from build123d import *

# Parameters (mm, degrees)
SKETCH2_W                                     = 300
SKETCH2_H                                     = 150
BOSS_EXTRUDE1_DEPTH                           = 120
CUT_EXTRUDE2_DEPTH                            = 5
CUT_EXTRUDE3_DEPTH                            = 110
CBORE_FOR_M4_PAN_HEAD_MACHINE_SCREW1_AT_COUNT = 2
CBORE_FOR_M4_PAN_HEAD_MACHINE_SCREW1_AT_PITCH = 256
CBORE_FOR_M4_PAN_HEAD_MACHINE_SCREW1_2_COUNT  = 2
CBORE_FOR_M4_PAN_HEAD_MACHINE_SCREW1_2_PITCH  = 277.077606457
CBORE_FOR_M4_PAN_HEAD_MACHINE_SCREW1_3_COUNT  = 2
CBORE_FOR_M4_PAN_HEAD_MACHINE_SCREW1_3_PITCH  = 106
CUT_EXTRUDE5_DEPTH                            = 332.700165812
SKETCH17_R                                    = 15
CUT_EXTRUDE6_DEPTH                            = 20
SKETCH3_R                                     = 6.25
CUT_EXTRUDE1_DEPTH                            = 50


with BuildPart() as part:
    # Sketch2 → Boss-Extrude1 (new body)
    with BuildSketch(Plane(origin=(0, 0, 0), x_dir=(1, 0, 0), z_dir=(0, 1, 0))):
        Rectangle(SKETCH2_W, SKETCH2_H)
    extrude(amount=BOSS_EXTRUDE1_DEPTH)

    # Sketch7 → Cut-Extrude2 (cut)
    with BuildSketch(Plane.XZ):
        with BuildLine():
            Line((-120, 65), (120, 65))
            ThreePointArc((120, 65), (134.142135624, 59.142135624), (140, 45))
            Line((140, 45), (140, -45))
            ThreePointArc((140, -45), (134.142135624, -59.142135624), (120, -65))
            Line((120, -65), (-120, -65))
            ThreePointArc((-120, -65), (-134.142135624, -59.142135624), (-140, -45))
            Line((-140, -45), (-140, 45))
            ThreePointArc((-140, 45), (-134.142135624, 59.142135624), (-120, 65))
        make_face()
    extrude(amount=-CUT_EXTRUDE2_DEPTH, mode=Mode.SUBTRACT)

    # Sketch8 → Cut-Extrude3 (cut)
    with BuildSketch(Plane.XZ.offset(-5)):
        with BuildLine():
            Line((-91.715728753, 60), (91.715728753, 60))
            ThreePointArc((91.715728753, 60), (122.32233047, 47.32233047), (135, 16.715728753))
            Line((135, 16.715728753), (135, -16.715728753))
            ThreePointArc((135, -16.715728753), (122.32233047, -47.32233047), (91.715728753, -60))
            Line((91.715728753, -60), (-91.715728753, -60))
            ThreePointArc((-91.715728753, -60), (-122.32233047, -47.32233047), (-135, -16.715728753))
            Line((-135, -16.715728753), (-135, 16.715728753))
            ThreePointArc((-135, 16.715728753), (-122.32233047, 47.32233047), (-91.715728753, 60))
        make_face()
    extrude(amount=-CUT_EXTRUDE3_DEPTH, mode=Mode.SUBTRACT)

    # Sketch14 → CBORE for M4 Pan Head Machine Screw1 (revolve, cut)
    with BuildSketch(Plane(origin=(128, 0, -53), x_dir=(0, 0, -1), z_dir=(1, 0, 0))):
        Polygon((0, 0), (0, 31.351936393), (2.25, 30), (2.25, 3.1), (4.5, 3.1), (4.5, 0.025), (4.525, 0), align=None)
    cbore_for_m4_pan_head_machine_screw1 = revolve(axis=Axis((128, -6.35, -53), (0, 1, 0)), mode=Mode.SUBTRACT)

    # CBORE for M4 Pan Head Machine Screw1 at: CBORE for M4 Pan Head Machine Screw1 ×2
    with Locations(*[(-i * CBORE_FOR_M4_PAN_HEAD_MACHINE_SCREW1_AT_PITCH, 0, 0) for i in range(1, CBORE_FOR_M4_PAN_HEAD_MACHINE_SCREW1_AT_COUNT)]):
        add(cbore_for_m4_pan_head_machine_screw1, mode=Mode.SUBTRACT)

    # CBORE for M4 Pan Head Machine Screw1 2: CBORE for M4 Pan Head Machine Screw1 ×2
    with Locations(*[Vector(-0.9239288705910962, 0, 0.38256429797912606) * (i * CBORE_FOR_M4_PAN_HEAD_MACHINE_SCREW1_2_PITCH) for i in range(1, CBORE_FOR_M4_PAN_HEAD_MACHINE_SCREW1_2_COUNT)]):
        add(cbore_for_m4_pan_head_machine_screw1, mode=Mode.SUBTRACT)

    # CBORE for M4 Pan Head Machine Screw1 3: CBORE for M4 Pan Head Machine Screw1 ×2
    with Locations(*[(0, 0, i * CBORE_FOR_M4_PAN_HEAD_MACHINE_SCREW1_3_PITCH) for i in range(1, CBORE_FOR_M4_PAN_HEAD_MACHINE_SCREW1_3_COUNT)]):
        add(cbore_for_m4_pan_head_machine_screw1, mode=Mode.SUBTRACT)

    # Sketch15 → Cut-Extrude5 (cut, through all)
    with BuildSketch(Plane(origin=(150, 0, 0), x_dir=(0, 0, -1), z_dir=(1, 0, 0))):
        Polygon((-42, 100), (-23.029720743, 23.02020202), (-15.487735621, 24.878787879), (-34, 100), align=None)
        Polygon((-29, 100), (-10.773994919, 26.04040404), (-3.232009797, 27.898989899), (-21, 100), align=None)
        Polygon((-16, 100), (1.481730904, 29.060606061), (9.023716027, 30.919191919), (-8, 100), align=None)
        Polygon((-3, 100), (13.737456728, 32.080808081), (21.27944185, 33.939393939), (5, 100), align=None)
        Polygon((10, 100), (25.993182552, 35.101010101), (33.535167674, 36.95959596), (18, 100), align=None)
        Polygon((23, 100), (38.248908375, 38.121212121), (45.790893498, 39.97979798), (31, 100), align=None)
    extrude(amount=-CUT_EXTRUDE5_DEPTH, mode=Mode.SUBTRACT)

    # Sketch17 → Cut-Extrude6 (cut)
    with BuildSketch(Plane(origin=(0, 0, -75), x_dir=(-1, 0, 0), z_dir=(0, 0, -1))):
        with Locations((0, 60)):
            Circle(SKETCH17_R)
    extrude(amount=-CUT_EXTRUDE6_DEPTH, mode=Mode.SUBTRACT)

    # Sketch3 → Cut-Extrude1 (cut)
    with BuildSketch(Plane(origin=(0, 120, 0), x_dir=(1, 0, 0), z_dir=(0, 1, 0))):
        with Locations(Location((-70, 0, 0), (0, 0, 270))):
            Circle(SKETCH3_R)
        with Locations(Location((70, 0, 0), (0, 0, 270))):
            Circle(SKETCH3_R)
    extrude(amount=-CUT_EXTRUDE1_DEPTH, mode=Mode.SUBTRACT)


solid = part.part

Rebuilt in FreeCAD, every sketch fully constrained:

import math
import FreeCAD as App
import Part
import Sketcher
from FreeCAD import Vector
Q = App.Units.Quantity


def add_polygon(sketch, points):
    """Adds a closed chain of lines whose ends are joined by coincident constraints."""
    first, n = sketch.GeometryCount, len(points)
    for a, b in zip(points, points[1:] + points[:1]):
        sketch.addGeometry(Part.LineSegment(App.Vector(*a, 0), App.Vector(*b, 0)), False)
    for i in range(n):
        sketch.addConstraint(Sketcher.Constraint("Coincident", first + i, 2, first + (i + 1) % n, 1))

doc = App.newDocument("Part")
body = doc.addObject("PartDesign::Body", "Body")

sketch1 = doc.addObject("Sketcher::SketchObject", "Sketch")
body.addObject(sketch1)
sketch1.AttachmentSupport = (doc.XZ_Plane, [""])
sketch1.MapMode = "FlatFace"
add_polygon(sketch1, [(-150, -75), (-150, 75), (150, 75), (150, -75)])
sketch1.addConstraint([
    Sketcher.Constraint("Vertical", 0),
    Sketcher.Constraint("Horizontal", 1),
    Sketcher.Constraint("Vertical", 2),
    Sketcher.Constraint("Horizontal", 3),
    Sketcher.Constraint("Symmetric", 0, 2, 2, 2, -1, 1),
    Sketcher.Constraint("DistanceX", 1, 1, 1, 2, 300.0),
    Sketcher.Constraint("DistanceY", 0, 1, 0, 2, 150.0),
])
pad1 = doc.addObject("PartDesign::Pad", "Pad")
body.addObject(pad1)
pad1.Profile = sketch1
pad1.Length = 120
pad1.Reversed = True

sketch2 = doc.addObject("Sketcher::SketchObject", "Sketch001")
body.addObject(sketch2)
sketch2.AttachmentSupport = (doc.XZ_Plane, [""])
sketch2.MapMode = "FlatFace"
sketch2.addGeometry([
    Part.LineSegment(Vector(120, 65, 0), Vector(-120, 65, 0)),
    Part.ArcOfCircle(Part.Circle(Vector(-120, 45, 0), Vector(0, 0, 1), 20), math.radians(90), math.radians(180)),
    Part.LineSegment(Vector(-140, 45, 0), Vector(-140, -45, 0)),
    Part.ArcOfCircle(Part.Circle(Vector(-120, -45, 0), Vector(0, 0, 1), 20), math.radians(180), math.radians(270)),
    Part.LineSegment(Vector(-120, -65, 0), Vector(120, -65, 0)),
    Part.ArcOfCircle(Part.Circle(Vector(120, -45, 0), Vector(0, 0, 1), 20), math.radians(-90), math.radians(0)),
    Part.LineSegment(Vector(140, -45, 0), Vector(140, 45, 0)),
    Part.ArcOfCircle(Part.Circle(Vector(120, 45, 0), Vector(0, 0, 1), 20), math.radians(0), math.radians(90)),
], False)
sketch2.addConstraint([
    Sketcher.Constraint("Tangent", 0, 2, 1, 1),
    Sketcher.Constraint("Tangent", 1, 2, 2, 1),
    Sketcher.Constraint("Tangent", 2, 2, 3, 1),
    Sketcher.Constraint("Tangent", 3, 2, 4, 1),
    Sketcher.Constraint("Tangent", 4, 2, 5, 1),
    Sketcher.Constraint("Tangent", 5, 2, 6, 1),
    Sketcher.Constraint("Tangent", 6, 2, 7, 1),
    Sketcher.Constraint("Tangent", 7, 2, 0, 1),
    Sketcher.Constraint("Horizontal", 0),
    Sketcher.Constraint("Vertical", 2),
    Sketcher.Constraint("Horizontal", 4),
    Sketcher.Constraint("Vertical", 6),
    Sketcher.Constraint("Equal", 1, 3),
    Sketcher.Constraint("Equal", 3, 5),
    Sketcher.Constraint("Equal", 5, 7),
    Sketcher.Constraint("Symmetric", 1, 3, 5, 3, -1, 1),
    Sketcher.Constraint("Radius", 1, 20.0),
    Sketcher.Constraint("DistanceX", 0, 2, 0, 1, 240.0),
    Sketcher.Constraint("DistanceY", 2, 2, 2, 1, 90.0),
])
pocket1 = doc.addObject("PartDesign::Pocket", "Pocket")
body.addObject(pocket1)
pocket1.Profile = sketch2
pocket1.Length = 5

sketch3 = doc.addObject("Sketcher::SketchObject", "Sketch002")
body.addObject(sketch3)
sketch3.AttachmentSupport = (doc.XZ_Plane, [""])
sketch3.MapMode = "FlatFace"
sketch3.AttachmentOffset = App.Placement(Vector(0, 0, -5), App.Rotation())
sketch3.addGeometry([
    Part.LineSegment(Vector(92, 60, 0), Vector(-92, 60, 0)),
    Part.ArcOfCircle(Part.Circle(Vector(-92, 17, 0), Vector(0, 0, 1), 43), math.radians(90), math.radians(180)),
    Part.LineSegment(Vector(-135, 17, 0), Vector(-135, -17, 0)),
    Part.ArcOfCircle(Part.Circle(Vector(-92, -17, 0), Vector(0, 0, 1), 43), math.radians(-180), math.radians(-90)),
    Part.LineSegment(Vector(-92, -60, 0), Vector(92, -60, 0)),
    Part.ArcOfCircle(Part.Circle(Vector(92, -17, 0), Vector(0, 0, 1), 43), math.radians(-90), math.radians(0)),
    Part.LineSegment(Vector(135, -17, 0), Vector(135, 17, 0)),
    Part.ArcOfCircle(Part.Circle(Vector(92, 17, 0), Vector(0, 0, 1), 43), math.radians(0), math.radians(90)),
], False)
sketch3.addConstraint([
    Sketcher.Constraint("Tangent", 0, 2, 1, 1),
    Sketcher.Constraint("Tangent", 1, 2, 2, 1),
    Sketcher.Constraint("Tangent", 2, 2, 3, 1),
    Sketcher.Constraint("Tangent", 3, 2, 4, 1),
    Sketcher.Constraint("Tangent", 4, 2, 5, 1),
    Sketcher.Constraint("Tangent", 5, 2, 6, 1),
    Sketcher.Constraint("Tangent", 6, 2, 7, 1),
    Sketcher.Constraint("Tangent", 7, 2, 0, 1),
    Sketcher.Constraint("Horizontal", 0),
    Sketcher.Constraint("Vertical", 2),
    Sketcher.Constraint("Horizontal", 4),
    Sketcher.Constraint("Vertical", 6),
    Sketcher.Constraint("Equal", 1, 3),
    Sketcher.Constraint("Equal", 3, 5),
    Sketcher.Constraint("Equal", 5, 7),
    Sketcher.Constraint("Symmetric", 1, 3, 5, 3, -1, 1),
    Sketcher.Constraint("DistanceY", -1, 1, 0, 2, 60.0),
    Sketcher.Constraint("DistanceX", 1, 2, -1, 1, 135.0),
    Sketcher.Constraint("Radius", 1, 43.284271),
])
pocket2 = doc.addObject("PartDesign::Pocket", "Pocket001")
body.addObject(pocket2)
pocket2.Profile = sketch3
pocket2.Length = 110

sketch4 = doc.addObject("Sketcher::SketchObject", "Sketch003")
body.addObject(sketch4)
sketch4.AttachmentSupport = (doc.YZ_Plane, [""])
sketch4.MapMode = "FlatFace"
sketch4.AttachmentOffset = App.Placement(Vector(0, 0, 128), App.Rotation())
add_polygon(sketch4, [(31.352, -53), (0, -53), (0, -57.525), (0.025, -57.5), (3.1, -57.5), (3.1, -55.25), (30, -55.25)])
sketch4.addGeometry(Part.LineSegment(Vector(0, -53, 0), Vector(31.352, -53, 0)), True)
sketch4.addConstraint([
    Sketcher.Constraint("Horizontal", 0),
    Sketcher.Constraint("Vertical", 1),
    Sketcher.Constraint("Horizontal", 3),
    Sketcher.Constraint("Vertical", 4),
    Sketcher.Constraint("Horizontal", 5),
    Sketcher.Constraint("Horizontal", 7),
    Sketcher.Constraint("Coincident", 7, 1, 0, 2),
    Sketcher.Constraint("PointOnObject", 0, 2, -2),
    Sketcher.Constraint("Equal", 0, 7),
    Sketcher.Constraint("Angle", 2, Q("45 deg")),
    Sketcher.Constraint("Angle", 6, Q("59 deg")),
    Sketcher.Constraint("DistanceX", 5, 1, 5, 2, 26.9),
    Sketcher.Constraint("DistanceY", 0, 2, -1, 1, 53.0),
    Sketcher.Constraint("DistanceX", -1, 1, 5, 2, 30.0),
    Sketcher.Constraint("DistanceY", 4, 1, 4, 2, 2.25),
    Sketcher.Constraint("DistanceY", 2, 2, -1, 1, 57.5),
    Sketcher.Constraint("DistanceX", 3, 1, 3, 2, 3.075),
])
groove = doc.addObject("PartDesign::Groove", "Groove")
body.addObject(groove)
groove.Profile = sketch4
groove.ReferenceAxis = (sketch4, ["Axis0"])
groove.Angle = 360
doc.recompute()

linearpattern = doc.addObject("PartDesign::LinearPattern", "LinearPattern")
body.addObject(linearpattern)
linearpattern.Originals = [groove]
linearpattern.Direction = (doc.X_Axis, [""])
linearpattern.Mode = "offset"
linearpattern.Offset = 256
linearpattern.Occurrences = 2
linearpattern.Reversed = True
body.Tip = linearpattern
doc.recompute()

datumline = doc.addObject("PartDesign::Line", "DatumLine")
body.addObject(datumline)
datumline.Placement = App.Placement(Vector(0, 0, 0), App.Rotation(Vector(0, 0, 1), Vector(-0.923928871, 0, 0.382564298)))
linearpattern2 = doc.addObject("PartDesign::LinearPattern", "LinearPattern001")
body.addObject(linearpattern2)
linearpattern2.Originals = [groove]
linearpattern2.Direction = (datumline, [""])
linearpattern2.Mode = "offset"
linearpattern2.Offset = 277.077606
linearpattern2.Occurrences = 2
body.Tip = linearpattern2
doc.recompute()

linearpattern3 = doc.addObject("PartDesign::LinearPattern", "LinearPattern002")
body.addObject(linearpattern3)
linearpattern3.Originals = [groove]
linearpattern3.Direction = (doc.Z_Axis, [""])
linearpattern3.Mode = "offset"
linearpattern3.Offset = 106
linearpattern3.Occurrences = 2
body.Tip = linearpattern3

sketch5 = doc.addObject("Sketcher::SketchObject", "Sketch004")
body.addObject(sketch5)
sketch5.AttachmentSupport = (doc.YZ_Plane, [""])
sketch5.MapMode = "FlatFace"
sketch5.AttachmentOffset = App.Placement(Vector(0, 0, 150), App.Rotation())
add_polygon(sketch5, [(100, 42), (23, 23), (25, 15), (100, 34)])
add_polygon(sketch5, [(100, 29), (26, 11), (28, 3), (100, 21)])
add_polygon(sketch5, [(100, 16), (29, -1), (31, -9), (100, 8)])
add_polygon(sketch5, [(100, 3), (32, -14), (34, -21), (100, -5)])
add_polygon(sketch5, [(100, -10), (35, -26), (37, -34), (100, -18)])
add_polygon(sketch5, [(100, -23), (38, -38), (40, -46), (100, -31)])
sketch5.addConstraint([
    Sketcher.Constraint("Vertical", 3),
    Sketcher.Constraint("Vertical", 7),
    Sketcher.Constraint("Vertical", 11),
    Sketcher.Constraint("Vertical", 15),
    Sketcher.Constraint("Vertical", 19),
    Sketcher.Constraint("Vertical", 23),
    Sketcher.Constraint("Perpendicular", 0, 1),
    Sketcher.Constraint("Perpendicular", 1, 2),
    Sketcher.Constraint("Parallel", 2, 4),
    Sketcher.Constraint("Perpendicular", 4, 5),
    Sketcher.Constraint("Perpendicular", 5, 6),
    Sketcher.Constraint("Parallel", 6, 8),
    Sketcher.Constraint("Perpendicular", 8, 9),
    Sketcher.Constraint("Perpendicular", 9, 10),
    Sketcher.Constraint("Parallel", 10, 12),
    Sketcher.Constraint("Perpendicular", 12, 13),
    Sketcher.Constraint("Perpendicular", 13, 14),
    Sketcher.Constraint("Parallel", 14, 16),
    Sketcher.Constraint("Perpendicular", 16, 17),
    Sketcher.Constraint("Perpendicular", 17, 18),
    Sketcher.Constraint("Parallel", 18, 20),
    Sketcher.Constraint("Perpendicular", 20, 21),
    Sketcher.Constraint("Perpendicular", 21, 22),
    Sketcher.Constraint("Vertical", 3, 2, 6, 2),
    Sketcher.Constraint("Vertical", 7, 2, 10, 2),
    Sketcher.Constraint("Vertical", 11, 2, 14, 2),
    Sketcher.Constraint("Vertical", 15, 2, 18, 2),
    Sketcher.Constraint("Vertical", 19, 2, 22, 2),
    Sketcher.Constraint("Equal", 3, 7),
    Sketcher.Constraint("Equal", 7, 11),
    Sketcher.Constraint("Equal", 11, 15),
    Sketcher.Constraint("Equal", 15, 19),
    Sketcher.Constraint("Equal", 19, 23),
    Sketcher.Constraint("DistanceY", 3, 1, 3, 2, 8.0),
    Sketcher.Constraint("DistanceX", -1, 1, 2, 2, 100.0),
    Sketcher.Constraint("DistanceY", -1, 1, 2, 2, 34.0),
    Sketcher.Constraint("DistanceY", -1, 1, 6, 2, 21.0),
    Sketcher.Constraint("DistanceY", -1, 1, 10, 2, 8.0),
    Sketcher.Constraint("DistanceY", 14, 2, -1, 1, 5.0),
    Sketcher.Constraint("DistanceY", 18, 2, -1, 1, 18.0),
    Sketcher.Constraint("DistanceY", 22, 2, -1, 1, 31.0),
    Sketcher.Constraint("Distance", 2, 77.368601),
    Sketcher.Constraint("Distance", 0, 79.28279),
    Sketcher.Constraint("Distance", 12, 69.951119),
    Sketcher.Constraint("DistanceX", -1, 1, 5, 2, 27.89899),
    Sketcher.Constraint("DistanceY", 8, 2, -1, 1, 1.481731),
    Sketcher.Constraint("DistanceX", -1, 1, 16, 2, 35.10101),
    Sketcher.Constraint("DistanceY", 20, 2, -1, 1, 38.248908),
])
pocket3 = doc.addObject("PartDesign::Pocket", "Pocket002")
body.addObject(pocket3)
pocket3.Profile = sketch5
pocket3.Type = "ThroughAll"

sketch6 = doc.addObject("Sketcher::SketchObject", "Sketch005")
body.addObject(sketch6)
sketch6.AttachmentSupport = (doc.XY_Plane, [""])
sketch6.MapMode = "FlatFace"
sketch6.AttachmentOffset = App.Placement(Vector(0, 0, -75), App.Rotation())
sketch6.addGeometry(Part.Circle(Vector(0, 60, 0), Vector(0, 0, 1), 15), False)
sketch6.addConstraint([
    Sketcher.Constraint("PointOnObject", 0, 3, -2),
    Sketcher.Constraint("Diameter", 0, 30.0),
    Sketcher.Constraint("DistanceY", -1, 1, 0, 3, 60.0),
])
pocket4 = doc.addObject("PartDesign::Pocket", "Pocket003")
body.addObject(pocket4)
pocket4.Profile = sketch6
pocket4.Length = 20
pocket4.Reversed = True

sketch7 = doc.addObject("Sketcher::SketchObject", "Sketch006")
body.addObject(sketch7)
sketch7.AttachmentSupport = (doc.XZ_Plane, [""])
sketch7.MapMode = "FlatFace"
sketch7.AttachmentOffset = App.Placement(Vector(0, 0, -120), App.Rotation())
sketch7.addGeometry([
    Part.Circle(Vector(-70, 0, 0), Vector(0, 0, 1), 6),
    Part.Circle(Vector(70, 0, 0), Vector(0, 0, 1), 6),
], False)
sketch7.addConstraint([
    Sketcher.Constraint("Equal", 0, 1),
    Sketcher.Constraint("Symmetric", 0, 3, 1, 3, -1, 1),
    Sketcher.Constraint("PointOnObject", 0, 3, -1),
    Sketcher.Constraint("Diameter", 0, 12.5),
    Sketcher.Constraint("DistanceX", 0, 3, -1, 1, 70.0),
])
pocket5 = doc.addObject("PartDesign::Pocket", "Pocket004")
body.addObject(pocket5)
pocket5.Profile = sketch7
pocket5.Length = 50
pocket5.Reversed = True

doc.recompute()
